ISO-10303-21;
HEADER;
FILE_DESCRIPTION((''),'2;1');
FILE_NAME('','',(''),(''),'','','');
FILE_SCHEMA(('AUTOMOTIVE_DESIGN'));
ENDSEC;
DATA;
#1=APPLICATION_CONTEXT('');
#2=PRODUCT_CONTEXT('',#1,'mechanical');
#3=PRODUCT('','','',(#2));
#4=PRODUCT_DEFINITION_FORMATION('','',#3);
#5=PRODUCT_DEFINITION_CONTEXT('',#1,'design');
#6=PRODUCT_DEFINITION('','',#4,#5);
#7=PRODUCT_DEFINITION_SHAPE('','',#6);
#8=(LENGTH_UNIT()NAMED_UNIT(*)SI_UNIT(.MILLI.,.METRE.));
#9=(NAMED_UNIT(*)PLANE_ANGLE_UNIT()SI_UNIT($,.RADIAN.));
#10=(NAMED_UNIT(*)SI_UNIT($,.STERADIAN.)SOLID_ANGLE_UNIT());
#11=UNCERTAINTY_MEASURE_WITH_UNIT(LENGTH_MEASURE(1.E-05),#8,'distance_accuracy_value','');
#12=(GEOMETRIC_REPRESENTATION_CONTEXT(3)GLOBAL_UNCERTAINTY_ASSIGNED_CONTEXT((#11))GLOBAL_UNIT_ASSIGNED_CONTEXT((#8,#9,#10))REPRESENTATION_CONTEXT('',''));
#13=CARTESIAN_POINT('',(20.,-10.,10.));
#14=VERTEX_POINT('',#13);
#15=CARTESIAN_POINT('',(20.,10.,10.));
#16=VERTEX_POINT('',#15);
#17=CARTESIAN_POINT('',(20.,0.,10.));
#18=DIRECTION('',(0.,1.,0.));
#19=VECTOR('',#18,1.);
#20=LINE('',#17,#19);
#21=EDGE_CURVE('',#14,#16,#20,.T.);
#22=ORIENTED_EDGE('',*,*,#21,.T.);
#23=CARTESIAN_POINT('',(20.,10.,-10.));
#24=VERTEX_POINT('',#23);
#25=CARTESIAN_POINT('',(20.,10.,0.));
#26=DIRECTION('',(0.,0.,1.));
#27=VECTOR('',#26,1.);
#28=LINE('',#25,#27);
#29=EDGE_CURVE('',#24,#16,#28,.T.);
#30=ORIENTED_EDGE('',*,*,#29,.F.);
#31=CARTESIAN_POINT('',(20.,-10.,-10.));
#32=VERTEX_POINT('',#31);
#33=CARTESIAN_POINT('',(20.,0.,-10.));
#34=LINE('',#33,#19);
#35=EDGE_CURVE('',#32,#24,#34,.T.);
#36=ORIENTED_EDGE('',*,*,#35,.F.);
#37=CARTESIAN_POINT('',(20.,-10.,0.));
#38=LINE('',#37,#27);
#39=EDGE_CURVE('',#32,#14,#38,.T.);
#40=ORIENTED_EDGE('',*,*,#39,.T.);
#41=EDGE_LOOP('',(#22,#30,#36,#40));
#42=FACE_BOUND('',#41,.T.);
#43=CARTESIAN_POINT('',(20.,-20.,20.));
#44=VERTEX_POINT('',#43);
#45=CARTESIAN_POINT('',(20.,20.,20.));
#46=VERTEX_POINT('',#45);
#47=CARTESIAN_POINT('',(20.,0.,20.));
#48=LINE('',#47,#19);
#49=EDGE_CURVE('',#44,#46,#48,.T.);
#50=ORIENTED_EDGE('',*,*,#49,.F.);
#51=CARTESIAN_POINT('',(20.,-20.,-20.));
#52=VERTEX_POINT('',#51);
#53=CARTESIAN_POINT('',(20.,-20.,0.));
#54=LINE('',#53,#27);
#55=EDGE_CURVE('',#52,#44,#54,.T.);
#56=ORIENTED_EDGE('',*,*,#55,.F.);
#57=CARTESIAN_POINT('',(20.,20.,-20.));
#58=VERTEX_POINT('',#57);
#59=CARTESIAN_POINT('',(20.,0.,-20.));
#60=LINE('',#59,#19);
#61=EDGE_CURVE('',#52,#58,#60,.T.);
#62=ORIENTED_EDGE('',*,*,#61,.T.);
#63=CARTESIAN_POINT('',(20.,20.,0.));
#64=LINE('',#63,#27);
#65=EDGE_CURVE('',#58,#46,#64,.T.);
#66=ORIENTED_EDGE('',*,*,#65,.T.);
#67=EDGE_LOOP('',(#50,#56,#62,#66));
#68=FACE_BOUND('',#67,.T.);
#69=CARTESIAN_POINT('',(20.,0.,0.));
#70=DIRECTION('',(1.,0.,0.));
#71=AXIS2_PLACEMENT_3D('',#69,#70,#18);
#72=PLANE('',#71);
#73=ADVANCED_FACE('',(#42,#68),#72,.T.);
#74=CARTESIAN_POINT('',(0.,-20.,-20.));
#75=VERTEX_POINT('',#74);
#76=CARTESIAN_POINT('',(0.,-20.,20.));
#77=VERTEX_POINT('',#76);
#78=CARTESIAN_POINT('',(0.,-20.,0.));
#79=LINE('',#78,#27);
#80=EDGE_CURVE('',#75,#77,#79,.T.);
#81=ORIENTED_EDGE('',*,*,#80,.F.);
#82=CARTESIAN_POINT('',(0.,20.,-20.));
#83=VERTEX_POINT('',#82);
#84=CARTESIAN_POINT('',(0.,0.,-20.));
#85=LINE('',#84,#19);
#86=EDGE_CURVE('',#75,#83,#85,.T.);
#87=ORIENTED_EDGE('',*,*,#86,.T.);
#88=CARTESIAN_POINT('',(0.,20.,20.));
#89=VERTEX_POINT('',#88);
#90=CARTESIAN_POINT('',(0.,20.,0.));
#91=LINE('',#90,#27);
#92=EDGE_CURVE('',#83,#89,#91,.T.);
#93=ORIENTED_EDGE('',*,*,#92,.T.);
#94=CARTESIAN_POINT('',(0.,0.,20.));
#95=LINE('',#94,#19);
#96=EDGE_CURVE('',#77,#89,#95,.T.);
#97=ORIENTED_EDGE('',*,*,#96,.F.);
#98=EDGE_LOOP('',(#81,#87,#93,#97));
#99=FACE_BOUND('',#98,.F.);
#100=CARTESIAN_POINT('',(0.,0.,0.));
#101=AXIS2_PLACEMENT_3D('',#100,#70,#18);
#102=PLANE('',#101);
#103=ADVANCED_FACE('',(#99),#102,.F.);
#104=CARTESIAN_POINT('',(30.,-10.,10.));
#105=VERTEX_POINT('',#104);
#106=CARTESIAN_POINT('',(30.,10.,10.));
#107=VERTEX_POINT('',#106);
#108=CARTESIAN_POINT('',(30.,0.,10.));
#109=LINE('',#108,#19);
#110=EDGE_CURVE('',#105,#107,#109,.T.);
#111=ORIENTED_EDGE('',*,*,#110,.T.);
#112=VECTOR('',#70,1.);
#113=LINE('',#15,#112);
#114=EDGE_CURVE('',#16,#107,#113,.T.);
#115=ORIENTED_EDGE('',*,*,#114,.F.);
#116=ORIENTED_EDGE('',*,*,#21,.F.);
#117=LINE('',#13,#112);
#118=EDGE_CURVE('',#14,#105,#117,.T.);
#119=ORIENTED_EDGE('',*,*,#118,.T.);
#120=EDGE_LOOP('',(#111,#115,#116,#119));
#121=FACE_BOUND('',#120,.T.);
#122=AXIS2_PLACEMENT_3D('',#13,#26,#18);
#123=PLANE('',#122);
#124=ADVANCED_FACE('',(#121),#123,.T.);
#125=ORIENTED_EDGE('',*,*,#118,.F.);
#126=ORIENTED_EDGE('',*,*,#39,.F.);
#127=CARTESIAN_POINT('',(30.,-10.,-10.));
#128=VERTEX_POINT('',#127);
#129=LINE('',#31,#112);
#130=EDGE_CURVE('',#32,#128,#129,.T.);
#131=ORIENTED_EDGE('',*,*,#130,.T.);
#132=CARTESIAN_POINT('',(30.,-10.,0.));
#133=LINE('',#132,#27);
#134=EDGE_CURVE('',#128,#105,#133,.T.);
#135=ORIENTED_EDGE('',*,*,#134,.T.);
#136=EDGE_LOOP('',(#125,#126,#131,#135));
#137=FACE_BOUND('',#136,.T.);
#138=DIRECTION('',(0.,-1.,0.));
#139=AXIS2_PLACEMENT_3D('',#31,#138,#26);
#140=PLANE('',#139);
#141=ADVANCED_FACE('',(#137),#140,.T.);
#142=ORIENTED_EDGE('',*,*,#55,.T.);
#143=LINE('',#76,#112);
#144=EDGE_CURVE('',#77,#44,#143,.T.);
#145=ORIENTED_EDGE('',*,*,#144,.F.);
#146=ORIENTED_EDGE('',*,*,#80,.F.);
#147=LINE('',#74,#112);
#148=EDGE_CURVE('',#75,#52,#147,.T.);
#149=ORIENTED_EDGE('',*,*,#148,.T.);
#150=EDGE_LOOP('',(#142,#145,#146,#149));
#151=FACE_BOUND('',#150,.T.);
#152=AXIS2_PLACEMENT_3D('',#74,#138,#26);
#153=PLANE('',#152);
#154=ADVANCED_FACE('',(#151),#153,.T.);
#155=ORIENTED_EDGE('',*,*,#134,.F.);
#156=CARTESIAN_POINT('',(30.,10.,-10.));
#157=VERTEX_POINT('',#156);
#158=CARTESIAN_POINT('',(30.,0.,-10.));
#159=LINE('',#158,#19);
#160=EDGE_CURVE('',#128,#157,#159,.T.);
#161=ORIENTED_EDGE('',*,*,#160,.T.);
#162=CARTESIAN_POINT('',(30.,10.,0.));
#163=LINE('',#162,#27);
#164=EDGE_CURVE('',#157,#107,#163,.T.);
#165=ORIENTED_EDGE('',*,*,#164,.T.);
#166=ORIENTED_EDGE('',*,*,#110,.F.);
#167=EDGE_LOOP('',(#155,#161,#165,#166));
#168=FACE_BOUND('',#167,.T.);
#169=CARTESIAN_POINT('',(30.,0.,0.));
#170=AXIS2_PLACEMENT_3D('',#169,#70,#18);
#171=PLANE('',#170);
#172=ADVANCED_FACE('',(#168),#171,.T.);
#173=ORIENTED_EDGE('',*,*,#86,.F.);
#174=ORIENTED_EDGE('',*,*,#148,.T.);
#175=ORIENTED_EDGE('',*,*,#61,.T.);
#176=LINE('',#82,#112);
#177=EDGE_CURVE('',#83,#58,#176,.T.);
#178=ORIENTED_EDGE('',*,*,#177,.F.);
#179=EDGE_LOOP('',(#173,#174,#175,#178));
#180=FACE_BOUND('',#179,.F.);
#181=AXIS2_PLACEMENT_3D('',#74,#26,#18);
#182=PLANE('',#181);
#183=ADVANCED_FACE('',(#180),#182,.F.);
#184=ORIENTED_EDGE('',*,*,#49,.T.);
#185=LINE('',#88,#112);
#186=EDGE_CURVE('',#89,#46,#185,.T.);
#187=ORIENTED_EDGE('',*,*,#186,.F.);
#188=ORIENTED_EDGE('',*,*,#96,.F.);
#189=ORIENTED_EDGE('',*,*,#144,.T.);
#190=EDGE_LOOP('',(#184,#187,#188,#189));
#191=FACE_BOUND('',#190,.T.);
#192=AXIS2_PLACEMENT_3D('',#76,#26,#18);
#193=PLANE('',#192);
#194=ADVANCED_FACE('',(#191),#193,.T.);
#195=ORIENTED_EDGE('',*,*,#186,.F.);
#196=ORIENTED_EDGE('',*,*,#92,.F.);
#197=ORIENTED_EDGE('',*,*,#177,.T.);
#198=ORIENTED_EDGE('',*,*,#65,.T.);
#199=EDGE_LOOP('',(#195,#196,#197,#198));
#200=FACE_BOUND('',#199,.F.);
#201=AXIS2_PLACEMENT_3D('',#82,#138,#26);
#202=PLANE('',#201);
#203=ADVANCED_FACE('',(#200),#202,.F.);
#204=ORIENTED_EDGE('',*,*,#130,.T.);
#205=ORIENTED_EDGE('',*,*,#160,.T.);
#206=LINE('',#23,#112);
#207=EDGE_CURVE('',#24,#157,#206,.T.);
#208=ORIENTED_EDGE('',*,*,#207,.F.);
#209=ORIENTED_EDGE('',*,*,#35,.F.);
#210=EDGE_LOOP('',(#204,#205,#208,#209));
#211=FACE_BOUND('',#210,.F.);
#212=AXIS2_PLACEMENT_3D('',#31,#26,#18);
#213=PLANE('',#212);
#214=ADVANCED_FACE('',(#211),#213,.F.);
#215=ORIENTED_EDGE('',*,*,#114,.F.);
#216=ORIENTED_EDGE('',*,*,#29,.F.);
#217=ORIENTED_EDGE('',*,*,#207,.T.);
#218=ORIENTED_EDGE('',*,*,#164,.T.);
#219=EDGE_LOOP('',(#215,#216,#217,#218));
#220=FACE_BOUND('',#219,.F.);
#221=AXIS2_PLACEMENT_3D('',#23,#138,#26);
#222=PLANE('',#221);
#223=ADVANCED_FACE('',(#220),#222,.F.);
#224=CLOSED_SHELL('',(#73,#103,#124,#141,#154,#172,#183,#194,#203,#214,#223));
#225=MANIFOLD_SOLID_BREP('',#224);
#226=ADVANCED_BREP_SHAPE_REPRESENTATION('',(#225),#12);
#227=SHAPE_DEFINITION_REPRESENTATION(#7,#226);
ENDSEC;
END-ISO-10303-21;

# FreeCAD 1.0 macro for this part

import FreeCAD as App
import Part
import Sketcher
Q = App.Units.Quantity

doc = App.newDocument("Part")
body = doc.addObject("PartDesign::Body", "Body")

sketch1 = body.newObject("Sketcher::SketchObject", "Sketch")
sketch1.AttachmentSupport = (doc.getObject("YZ_Plane"), [""])
sketch1.MapMode = "FlatFace"
sketch1.addGeometry([
    Part.LineSegment(App.Vector(-20, 20, 0), App.Vector(-20, -20, 0)),
    Part.LineSegment(App.Vector(-20, -20, 0), App.Vector(20, -20, 0)),
    Part.LineSegment(App.Vector(20, -20, 0), App.Vector(20, 20, 0)),
    Part.LineSegment(App.Vector(20, 20, 0), App.Vector(-20, 20, 0)),
], False)
sketch1.addConstraint([
    Sketcher.Constraint("Coincident", 0, 2, 1, 1),
    Sketcher.Constraint("Coincident", 1, 2, 2, 1),
    Sketcher.Constraint("Coincident", 2, 2, 3, 1),
    Sketcher.Constraint("Coincident", 3, 2, 0, 1),
    Sketcher.Constraint("Vertical", 0),
    Sketcher.Constraint("Horizontal", 1),
    Sketcher.Constraint("Vertical", 2),
    Sketcher.Constraint("Horizontal", 3),
    Sketcher.Constraint("Symmetric", 0, 2, 2, 2, -1, 1),
    Sketcher.Constraint("Equal", 3, 0),
    Sketcher.Constraint("DistanceX", 1, 1, 1, 2, Q("40 mm")),
])
pad1 = body.newObject("PartDesign::Pad", "Pad")
pad1.Profile = sketch1
pad1.Length = 20

sketch2 = body.newObject("Sketcher::SketchObject", "Sketch001")
sketch2.AttachmentSupport = (doc.getObject("YZ_Plane"), [""])
sketch2.MapMode = "FlatFace"
sketch2.AttachmentOffset = App.Placement(App.Vector(0, 0, 20), App.Rotation())
sketch2.addGeometry([
    Part.LineSegment(App.Vector(-10, 10, 0), App.Vector(-10, -10, 0)),
    Part.LineSegment(App.Vector(-10, -10, 0), App.Vector(10, -10, 0)),
    Part.LineSegment(App.Vector(10, -10, 0), App.Vector(10, 10, 0)),
    Part.LineSegment(App.Vector(10, 10, 0), App.Vector(-10, 10, 0)),
], False)
sketch2.addConstraint([
    Sketcher.Constraint("Coincident", 0, 2, 1, 1),
    Sketcher.Constraint("Coincident", 1, 2, 2, 1),
    Sketcher.Constraint("Coincident", 2, 2, 3, 1),
    Sketcher.Constraint("Coincident", 3, 2, 0, 1),
    Sketcher.Constraint("Vertical", 0),
    Sketcher.Constraint("Horizontal", 1),
    Sketcher.Constraint("Vertical", 2),
    Sketcher.Constraint("Horizontal", 3),
    Sketcher.Constraint("Symmetric", 0, 2, 2, 2, -1, 1),
    Sketcher.Constraint("Equal", 3, 0),
    Sketcher.Constraint("DistanceX", 1, 1, 1, 2, Q("20 mm")),
])
pad2 = body.newObject("PartDesign::Pad", "Pad001")
pad2.Profile = sketch2
pad2.Length = 10

doc.recompute()
